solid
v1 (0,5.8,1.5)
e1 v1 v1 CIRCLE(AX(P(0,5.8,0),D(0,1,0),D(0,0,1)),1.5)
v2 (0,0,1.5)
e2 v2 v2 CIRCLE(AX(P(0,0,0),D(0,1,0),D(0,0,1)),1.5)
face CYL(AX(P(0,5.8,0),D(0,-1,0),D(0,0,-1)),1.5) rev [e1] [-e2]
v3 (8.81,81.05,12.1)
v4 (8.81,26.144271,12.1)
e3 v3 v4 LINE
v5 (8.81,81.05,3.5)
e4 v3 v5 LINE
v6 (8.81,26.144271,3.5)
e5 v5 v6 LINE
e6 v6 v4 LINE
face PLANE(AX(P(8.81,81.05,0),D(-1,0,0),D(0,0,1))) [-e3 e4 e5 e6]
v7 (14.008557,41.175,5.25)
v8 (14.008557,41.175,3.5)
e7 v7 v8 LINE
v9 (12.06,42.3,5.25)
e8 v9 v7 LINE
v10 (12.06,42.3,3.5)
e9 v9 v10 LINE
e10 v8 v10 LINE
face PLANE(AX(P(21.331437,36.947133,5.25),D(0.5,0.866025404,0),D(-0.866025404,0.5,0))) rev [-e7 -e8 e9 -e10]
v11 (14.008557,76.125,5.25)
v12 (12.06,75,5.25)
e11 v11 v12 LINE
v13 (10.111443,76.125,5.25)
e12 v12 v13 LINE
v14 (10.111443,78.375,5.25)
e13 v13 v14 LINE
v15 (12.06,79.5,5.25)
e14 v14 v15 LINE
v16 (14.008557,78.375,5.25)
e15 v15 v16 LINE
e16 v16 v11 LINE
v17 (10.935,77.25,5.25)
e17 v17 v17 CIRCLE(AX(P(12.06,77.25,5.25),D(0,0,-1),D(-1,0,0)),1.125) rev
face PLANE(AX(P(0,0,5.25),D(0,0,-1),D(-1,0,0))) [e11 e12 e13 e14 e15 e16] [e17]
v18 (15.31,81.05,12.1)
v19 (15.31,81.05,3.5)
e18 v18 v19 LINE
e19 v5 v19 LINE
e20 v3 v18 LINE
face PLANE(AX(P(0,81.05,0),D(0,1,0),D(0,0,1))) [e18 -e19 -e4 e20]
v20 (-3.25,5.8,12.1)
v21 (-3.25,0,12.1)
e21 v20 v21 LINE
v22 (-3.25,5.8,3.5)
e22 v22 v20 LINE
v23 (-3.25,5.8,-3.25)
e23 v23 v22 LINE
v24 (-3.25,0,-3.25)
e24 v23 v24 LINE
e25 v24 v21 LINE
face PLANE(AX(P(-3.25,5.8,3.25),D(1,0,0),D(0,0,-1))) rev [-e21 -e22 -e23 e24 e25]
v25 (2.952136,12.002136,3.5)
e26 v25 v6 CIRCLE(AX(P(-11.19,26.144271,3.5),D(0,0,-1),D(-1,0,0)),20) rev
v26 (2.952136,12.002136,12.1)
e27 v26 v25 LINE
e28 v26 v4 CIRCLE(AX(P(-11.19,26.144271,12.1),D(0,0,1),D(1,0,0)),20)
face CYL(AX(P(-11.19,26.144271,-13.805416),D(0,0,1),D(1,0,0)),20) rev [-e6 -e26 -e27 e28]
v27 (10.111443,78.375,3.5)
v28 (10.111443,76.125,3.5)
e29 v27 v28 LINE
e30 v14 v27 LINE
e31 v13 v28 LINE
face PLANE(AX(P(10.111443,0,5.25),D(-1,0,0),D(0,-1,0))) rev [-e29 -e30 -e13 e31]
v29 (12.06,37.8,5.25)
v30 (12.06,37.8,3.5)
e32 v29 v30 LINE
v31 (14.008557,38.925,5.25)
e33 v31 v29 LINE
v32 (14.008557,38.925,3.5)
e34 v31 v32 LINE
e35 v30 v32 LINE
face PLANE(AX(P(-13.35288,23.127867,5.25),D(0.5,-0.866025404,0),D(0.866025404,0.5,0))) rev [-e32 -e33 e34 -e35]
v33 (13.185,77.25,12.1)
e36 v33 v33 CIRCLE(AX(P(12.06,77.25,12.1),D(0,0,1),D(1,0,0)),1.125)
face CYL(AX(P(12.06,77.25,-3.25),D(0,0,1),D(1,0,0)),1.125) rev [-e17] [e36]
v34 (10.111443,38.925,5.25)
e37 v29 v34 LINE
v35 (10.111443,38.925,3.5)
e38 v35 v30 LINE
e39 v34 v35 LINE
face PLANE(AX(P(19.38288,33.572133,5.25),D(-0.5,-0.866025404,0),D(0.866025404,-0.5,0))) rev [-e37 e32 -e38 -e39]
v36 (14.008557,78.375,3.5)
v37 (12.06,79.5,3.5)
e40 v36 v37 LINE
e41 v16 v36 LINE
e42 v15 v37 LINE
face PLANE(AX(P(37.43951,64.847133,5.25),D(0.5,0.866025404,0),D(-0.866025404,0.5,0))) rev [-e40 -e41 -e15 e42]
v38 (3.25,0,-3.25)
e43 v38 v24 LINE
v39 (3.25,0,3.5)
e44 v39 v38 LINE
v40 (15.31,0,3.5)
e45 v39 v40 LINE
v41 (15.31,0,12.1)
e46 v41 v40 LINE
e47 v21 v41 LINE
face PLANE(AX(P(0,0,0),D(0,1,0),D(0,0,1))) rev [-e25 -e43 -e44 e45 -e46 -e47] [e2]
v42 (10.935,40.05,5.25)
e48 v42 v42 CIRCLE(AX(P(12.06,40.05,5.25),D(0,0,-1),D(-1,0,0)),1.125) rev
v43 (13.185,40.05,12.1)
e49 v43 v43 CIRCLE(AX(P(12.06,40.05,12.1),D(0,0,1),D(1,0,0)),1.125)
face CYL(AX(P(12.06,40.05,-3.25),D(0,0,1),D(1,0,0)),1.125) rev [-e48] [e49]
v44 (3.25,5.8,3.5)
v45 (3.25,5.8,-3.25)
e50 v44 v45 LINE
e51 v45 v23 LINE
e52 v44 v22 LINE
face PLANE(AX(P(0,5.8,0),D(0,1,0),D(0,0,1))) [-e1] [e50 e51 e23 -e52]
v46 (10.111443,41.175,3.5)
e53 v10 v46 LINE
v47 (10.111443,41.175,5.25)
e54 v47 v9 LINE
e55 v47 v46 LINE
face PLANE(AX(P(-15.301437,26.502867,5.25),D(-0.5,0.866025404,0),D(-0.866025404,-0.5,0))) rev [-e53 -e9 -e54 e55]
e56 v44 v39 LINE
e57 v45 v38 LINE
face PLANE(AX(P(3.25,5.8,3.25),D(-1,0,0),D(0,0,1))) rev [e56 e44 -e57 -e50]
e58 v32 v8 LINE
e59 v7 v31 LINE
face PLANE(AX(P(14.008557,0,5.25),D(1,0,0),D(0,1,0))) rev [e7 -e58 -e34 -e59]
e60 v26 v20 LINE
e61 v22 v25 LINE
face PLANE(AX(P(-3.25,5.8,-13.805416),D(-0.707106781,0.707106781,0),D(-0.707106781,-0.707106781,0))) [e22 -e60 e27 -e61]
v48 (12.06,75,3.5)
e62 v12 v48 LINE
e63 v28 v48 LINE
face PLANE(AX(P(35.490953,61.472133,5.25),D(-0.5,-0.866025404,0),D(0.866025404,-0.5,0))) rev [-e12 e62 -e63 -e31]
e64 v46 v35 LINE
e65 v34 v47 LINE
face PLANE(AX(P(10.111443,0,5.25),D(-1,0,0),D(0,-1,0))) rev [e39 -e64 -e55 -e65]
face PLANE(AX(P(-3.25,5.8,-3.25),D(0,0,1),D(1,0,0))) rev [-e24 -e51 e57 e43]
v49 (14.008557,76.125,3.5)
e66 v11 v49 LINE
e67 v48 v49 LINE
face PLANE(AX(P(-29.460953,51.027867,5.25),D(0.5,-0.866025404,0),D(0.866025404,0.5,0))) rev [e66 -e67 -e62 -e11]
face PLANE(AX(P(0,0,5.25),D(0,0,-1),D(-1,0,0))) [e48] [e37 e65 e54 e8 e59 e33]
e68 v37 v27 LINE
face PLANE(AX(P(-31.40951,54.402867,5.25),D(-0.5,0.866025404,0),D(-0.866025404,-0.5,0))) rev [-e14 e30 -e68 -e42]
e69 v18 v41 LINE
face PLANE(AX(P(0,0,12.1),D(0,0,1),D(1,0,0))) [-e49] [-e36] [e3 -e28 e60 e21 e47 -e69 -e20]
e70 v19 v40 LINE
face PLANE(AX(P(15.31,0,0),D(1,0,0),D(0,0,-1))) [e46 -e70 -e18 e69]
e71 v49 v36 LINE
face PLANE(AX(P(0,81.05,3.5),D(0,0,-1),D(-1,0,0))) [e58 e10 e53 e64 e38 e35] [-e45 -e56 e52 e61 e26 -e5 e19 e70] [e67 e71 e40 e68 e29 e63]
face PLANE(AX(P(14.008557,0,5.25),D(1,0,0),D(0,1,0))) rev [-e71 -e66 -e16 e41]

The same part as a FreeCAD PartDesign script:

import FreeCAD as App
import Part
import Sketcher

V = App.Vector
Q = App.Units.Quantity


def edges_at(feature, points):
    """Names of the edges that pass closest to the given points."""
    edges = feature.Shape.Edges
    near = lambda p: min(range(len(edges)), key=lambda i: edges[i].distToShape(Part.Vertex(*p))[0])
    return sorted({f"Edge{near(p) + 1}" for p in points})

doc = App.newDocument("Part")
body = doc.addObject("PartDesign::Body", "Body")

# Sketch on XZ plane
sketch1 = body.newObject("Sketcher::SketchObject", "Sketch")
sketch1.AttachmentSupport = (doc.getObject("XZ_Plane"), [""])
sketch1.MapMode = "FlatFace"
sketch1.addGeometry([
    Part.LineSegment(V(-3.2, -3.2, 0), V(-3.2, 3.2, 0)),  # 0
    Part.LineSegment(V(-3.2, 3.2, 0), V(3.2, 3.2, 0)),  # 1
    Part.LineSegment(V(3.2, 3.2, 0), V(3.2, -3.2, 0)),  # 2
    Part.LineSegment(V(3.2, -3.2, 0), V(-3.2, -3.2, 0)),  # 3
    Part.Circle(V(0, 0, 0), V(0, 0, 1), 1.5),  # 4
], False)
sketch1.addConstraint([
    Sketcher.Constraint("Coincident", 0, 2, 1, 1),
    Sketcher.Constraint("Coincident", 1, 2, 2, 1),
    Sketcher.Constraint("Coincident", 2, 2, 3, 1),
    Sketcher.Constraint("Coincident", 3, 2, 0, 1),
    Sketcher.Constraint("Vertical", 0),
    Sketcher.Constraint("Horizontal", 1),
    Sketcher.Constraint("Vertical", 2),
    Sketcher.Constraint("Horizontal", 3),
    Sketcher.Constraint("Coincident", 4, 3, -1, 1),
    Sketcher.Constraint("Symmetric", 0, 2, 2, 2, -1, 1),
    Sketcher.Constraint("Equal", 3, 0),
    Sketcher.Constraint("Diameter", 4, 3.0),
    Sketcher.Constraint("DistanceX", 1, 1, 1, 2, 6.5),
])
pad1 = body.newObject("PartDesign::Pad", "Pad")
pad1.Profile = sketch1
pad1.Length = 5.8
pad1.Reversed = True

# Sketch on XY plane
sketch2 = body.newObject("Sketcher::SketchObject", "Sketch001")
sketch2.AttachmentSupport = (doc.getObject("XY_Plane"), [""])
sketch2.MapMode = "FlatFace"
sketch2.AttachmentOffset = App.Placement(V(0, 0, 3.25), App.Rotation())
sketch2.addGeometry([
    Part.LineSegment(V(-3, 6, 0), V(-3, 0, 0)),
    Part.LineSegment(V(-3, 0, 0), V(3, 0, 0)),
    Part.LineSegment(V(3, 0, 0), V(3, 6, 0)),
    Part.LineSegment(V(3, 6, 0), V(-3, 6, 0)),
], False)
sketch2.addConstraint([
    Sketcher.Constraint("Coincident", 0, 2, 1, 1),
    Sketcher.Constraint("Coincident", 1, 2, 2, 1),
    Sketcher.Constraint("Coincident", 2, 2, 3, 1),
    Sketcher.Constraint("Coincident", 3, 2, 0, 1),
    Sketcher.Constraint("Vertical", 0),
    Sketcher.Constraint("Horizontal", 1),
    Sketcher.Constraint("Vertical", 2),
    Sketcher.Constraint("Horizontal", 3),
    Sketcher.Constraint("Symmetric", 0, 2, 1, 2, -1, 1),
    Sketcher.Constraint("DistanceX", 1, 1, 1, 2, 6.5),
    Sketcher.Constraint("DistanceY", 0, 2, 0, 1, 5.8),
])
pad2 = body.newObject("PartDesign::Pad", "Pad001")
pad2.Profile = sketch2
pad2.Length = 8.85

# Sketch on YZ plane
sketch3 = body.newObject("Sketcher::SketchObject", "Sketch002")
sketch3.AttachmentSupport = (doc.getObject("YZ_Plane"), [""])
sketch3.MapMode = "FlatFace"
sketch3.AttachmentOffset = App.Placement(V(0, 0, 3.25), App.Rotation())
sketch3.addGeometry([
    Part.LineSegment(V(6, 12, 0), V(0, 12, 0)),
    Part.LineSegment(V(0, 12, 0), V(0, 3, 0)),
    Part.LineSegment(V(0, 3, 0), V(6, 3, 0)),
    Part.LineSegment(V(6, 3, 0), V(6, 12, 0)),
], False)
sketch3.addConstraint([
    Sketcher.Constraint("Coincident", 0, 2, 1, 1),
    Sketcher.Constraint("Coincident", 1, 2, 2, 1),
    Sketcher.Constraint("Coincident", 2, 2, 3, 1),
    Sketcher.Constraint("Coincident", 3, 2, 0, 1),
    Sketcher.Constraint("Horizontal", 0),
    Sketcher.Constraint("Vertical", 1),
    Sketcher.Constraint("Horizontal", 2),
    Sketcher.Constraint("Vertical", 3),
    Sketcher.Constraint("PointOnObject", 0, 2, -2),
    Sketcher.Constraint("DistanceX", 0, 2, 0, 1, 5.8),
    Sketcher.Constraint("DistanceY", 1, 2, 1, 1, 8.85),
    Sketcher.Constraint("DistanceY", -1, 1, 0, 2, 12.1),
])
pad3 = body.newObject("PartDesign::Pad", "Pad002")
pad3.Profile = sketch3
pad3.Length = 12.06

# Sketch on XZ plane
sketch4 = body.newObject("Sketcher::SketchObject", "Sketch003")
sketch4.AttachmentSupport = (doc.getObject("XZ_Plane"), [""])
sketch4.MapMode = "FlatFace"
sketch4.AttachmentOffset = App.Placement(V(0, 0, -5.8), App.Rotation())
sketch4.addGeometry([
    Part.LineSegment(V(9, 3, 0), V(9, 12, 0)),
    Part.LineSegment(V(9, 12, 0), V(15, 12, 0)),
    Part.LineSegment(V(15, 12, 0), V(15, 3, 0)),
    Part.LineSegment(V(15, 3, 0), V(9, 3, 0)),
], False)
sketch4.addConstraint([
    Sketcher.Constraint("Coincident", 0, 2, 1, 1),
    Sketcher.Constraint("Coincident", 1, 2, 2, 1),
    Sketcher.Constraint("Coincident", 2, 2, 3, 1),
    Sketcher.Constraint("Coincident", 3, 2, 0, 1),
    Sketcher.Constraint("Vertical", 0),
    Sketcher.Constraint("Horizontal", 1),
    Sketcher.Constraint("Vertical", 2),
    Sketcher.Constraint("Horizontal", 3),
    Sketcher.Constraint("DistanceX", 1, 1, 1, 2, 6.5),
    Sketcher.Constraint("DistanceY", 0, 1, 0, 2, 8.85),
    Sketcher.Constraint("DistanceY", -1, 1, 0, 2, 12.1),
    Sketcher.Constraint("DistanceX", -1, 1, 0, 2, 8.81),
])
pad4 = body.newObject("PartDesign::Pad", "Pad003")
pad4.Profile = sketch4
pad4.Length = 75.25
pad4.Reversed = True

# Sketch on XY plane
sketch5 = body.newObject("Sketcher::SketchObject", "Sketch004")
sketch5.AttachmentSupport = (doc.getObject("XY_Plane"), [""])
sketch5.MapMode = "FlatFace"
sketch5.AttachmentOffset = App.Placement(V(0, 0, 12.1), App.Rotation())
sketch5.addGeometry([
    Part.LineSegment(V(-3, 6, 0), V(9, 6, 0)),
    Part.LineSegment(V(9, 6, 0), V(9, 18, 0)),
    Part.LineSegment(V(9, 18, 0), V(-3, 6, 0)),
], False)
sketch5.addConstraint([
    Sketcher.Constraint("Coincident", 0, 2, 1, 1),
    Sketcher.Constraint("Coincident", 1, 2, 2, 1),
    Sketcher.Constraint("Coincident", 2, 2, 0, 1),
    Sketcher.Constraint("Horizontal", 0),
    Sketcher.Constraint("Vertical", 1),
    Sketcher.Constraint("Equal", 0, 1),
    Sketcher.Constraint("DistanceX", 0, 1, 0, 2, 12.06),
    Sketcher.Constraint("DistanceY", -1, 1, 0, 2, 5.8),
    Sketcher.Constraint("DistanceX", -1, 1, 0, 2, 8.81),
])
pad5 = body.newObject("PartDesign::Pad", "Pad004")
pad5.Profile = sketch5
pad5.Length = 8.85
pad5.Reversed = True
doc.recompute()

fillet = body.newObject("PartDesign::Fillet", "Fillet")
fillet.Base = (pad5, edges_at(pad5, [(8.81, 17.86, 7.675)]))
fillet.Radius = 20

# Sketch on XY plane
sketch6 = body.newObject("Sketcher::SketchObject", "Sketch005")
sketch6.AttachmentSupport = (doc.getObject("XY_Plane"), [""])
sketch6.MapMode = "FlatFace"
sketch6.AttachmentOffset = App.Placement(V(0, 0, 12.1), App.Rotation())
sketch6.addGeometry([
    Part.Circle(V(12.1, 77.2, 0), V(0, 0, 1), 1.1),
    Part.Circle(V(12.1, 40, 0), V(0, 0, 1), 1.1),
], False)
sketch6.addConstraint([
    Sketcher.Constraint("Equal", 0, 1),
    Sketcher.Constraint("Vertical", 0, 3, 1, 3),
    Sketcher.Constraint("Diameter", 0, 2.25),
    Sketcher.Constraint("DistanceY", 1, 3, 0, 3, 37.2),
    Sketcher.Constraint("DistanceX", -1, 1, 0, 3, 12.06),
    Sketcher.Constraint("DistanceY", -1, 1, 0, 3, 77.25),
])
pocket1 = body.newObject("PartDesign::Pocket", "Pocket")
pocket1.Profile = sketch6
pocket1.Type = "ThroughAll"

# Sketch on XY plane
sketch7 = body.newObject("Sketcher::SketchObject", "Sketch006")
sketch7.AttachmentSupport = (doc.getObject("XY_Plane"), [""])
sketch7.MapMode = "FlatFace"
sketch7.AttachmentOffset = App.Placement(V(0, 0, 5.25), App.Rotation())
sketch7.addGeometry([
    Part.LineSegment(V(10.1, 76.1, 0), V(10.1, 78.4, 0)),  # 0
    Part.LineSegment(V(10.1, 78.4, 0), V(12.1, 79.5, 0)),  # 1
    Part.LineSegment(V(12.1, 79.5, 0), V(14, 78.4, 0)),  # 2
    Part.LineSegment(V(14, 78.4, 0), V(14, 76.1, 0)),  # 3
    Part.LineSegment(V(14, 76.1, 0), V(12.1, 75, 0)),  # 4
    Part.LineSegment(V(12.1, 75, 0), V(10.1, 76.1, 0)),  # 5
    Part.Circle(V(12.1, 77.2, 0), V(0, 0, 1), 1.1),  # 6
    Part.LineSegment(V(10.1, 38.9, 0), V(10.1, 41.2, 0)),  # 7
    Part.LineSegment(V(10.1, 41.2, 0), V(12.1, 42.3, 0)),  # 8
    Part.LineSegment(V(12.1, 42.3, 0), V(14, 41.2, 0)),  # 9
    Part.LineSegment(V(14, 41.2, 0), V(14, 38.9, 0)),  # 10
    Part.LineSegment(V(14, 38.9, 0), V(12.1, 37.8, 0)),  # 11
    Part.LineSegment(V(12.1, 37.8, 0), V(10.1, 38.9, 0)),  # 12
    Part.Circle(V(12.1, 40, 0), V(0, 0, 1), 1.1),  # 13
], False)
sketch7.addConstraint([
    Sketcher.Constraint("Coincident", 0, 2, 1, 1),
    Sketcher.Constraint("Coincident", 1, 2, 2, 1),
    Sketcher.Constraint("Coincident", 2, 2, 3, 1),
    Sketcher.Constraint("Coincident", 3, 2, 4, 1),
    Sketcher.Constraint("Coincident", 4, 2, 5, 1),
    Sketcher.Constraint("Coincident", 5, 2, 0, 1),
    Sketcher.Constraint("Coincident", 7, 2, 8, 1),
    Sketcher.Constraint("Coincident", 8, 2, 9, 1),
    Sketcher.Constraint("Coincident", 9, 2, 10, 1),
    Sketcher.Constraint("Coincident", 10, 2, 11, 1),
    Sketcher.Constraint("Coincident", 11, 2, 12, 1),
    Sketcher.Constraint("Coincident", 12, 2, 7, 1),
    Sketcher.Constraint("Vertical", 0),
    Sketcher.Constraint("Vertical", 3),
    Sketcher.Constraint("Vertical", 7),
    Sketcher.Constraint("Vertical", 10),
    Sketcher.Constraint("Equal", 6, 13),
    Sketcher.Constraint("Parallel", 1, 4),
    Sketcher.Constraint("Parallel", 2, 5),
    Sketcher.Constraint("Parallel", 4, 8),
    Sketcher.Constraint("Parallel", 5, 9),
    Sketcher.Constraint("Parallel", 8, 11),
    Sketcher.Constraint("Parallel", 9, 12),
    Sketcher.Constraint("Horizontal", 0, 2, 2, 2),
    Sketcher.Constraint("Horizontal", 3, 2, 5, 2),
    Sketcher.Constraint("Horizontal", 7, 2, 9, 2),
    Sketcher.Constraint("Horizontal", 10, 2, 12, 2),
    Sketcher.Constraint("Vertical", 6, 3, 13, 3),
    Sketcher.Constraint("Vertical", 13, 3, 1, 2),
    Sketcher.Constraint("Vertical", 1, 2, 4, 2),
    Sketcher.Constraint("Vertical", 5, 2, 7, 2),
    Sketcher.Constraint("Vertical", 4, 2, 8, 2),
    Sketcher.Constraint("Equal", 3, 7),
    Sketcher.Constraint("Diameter", 6, 2.25),
    Sketcher.Constraint("Angle", 1, Q("30 deg")),
    Sketcher.Constraint("DistanceY", -1, 1, 4, 2, 75.0),
    Sketcher.Constraint("DistanceY", 0, 1, 0, 2, 2.25),
    Sketcher.Constraint("DistanceY", -1, 1, 1, 2, 79.5),
    Sketcher.Constraint("DistanceY", -1, 1, 8, 2, 42.3),
    Sketcher.Constraint("DistanceY", 13, 3, 6, 3, 37.2),
    Sketcher.Constraint("DistanceX", -1, 1, 6, 3, 12.06),
    Sketcher.Constraint("DistanceY", -1, 1, 6, 3, 77.25),
])
pocket2 = body.newObject("PartDesign::Pocket", "Pocket001")
pocket2.Profile = sketch7
pocket2.Length = 2

# Sketch on XZ plane
sketch8 = body.newObject("Sketcher::SketchObject", "Sketch007")
sketch8.AttachmentSupport = (doc.getObject("XZ_Plane"), [""])
sketch8.MapMode = "FlatFace"
sketch8.addGeometry([
    Part.LineSegment(V(15.31, 3.25, 0), V(15.31, 3.5, 0)),
    Part.LineSegment(V(15.31, 3.5, 0), V(3.25, 3.5, 0)),
    Part.LineSegment(V(3.25, 3.5, 0), V(3.25, 3.25, 0)),
    Part.LineSegment(V(3.25, 3.25, 0), V(15.31, 3.25, 0)),
], False)
sketch8.addConstraint([
    Sketcher.Constraint("Coincident", 0, 2, 1, 1),
    Sketcher.Constraint("Coincident", 1, 2, 2, 1),
    Sketcher.Constraint("Coincident", 2, 2, 3, 1),
    Sketcher.Constraint("Coincident", 3, 2, 0, 1),
    Sketcher.Constraint("Vertical", 0),
    Sketcher.Constraint("Horizontal", 1),
    Sketcher.Constraint("Vertical", 2),
    Sketcher.Constraint("Horizontal", 3),
    Sketcher.Constraint("DistanceX", 1, 2, 1, 1, 12.06),
    Sketcher.Constraint("DistanceY", 0, 1, 0, 2, 0.25),
    Sketcher.Constraint("DistanceY", -1, 1, 0, 2, 3.5),
    Sketcher.Constraint("DistanceX", -1, 1, 0, 2, 15.31),
])
pocket3 = body.newObject("PartDesign::Pocket", "Pocket002")
pocket3.Profile = sketch8
pocket3.Type = "ThroughAll"

# Sketch on XZ plane
sketch9 = body.newObject("Sketcher::SketchObject", "Sketch008")
sketch9.AttachmentSupport = (doc.getObject("XZ_Plane"), [""])
sketch9.MapMode = "FlatFace"
sketch9.AttachmentOffset = App.Placement(V(0, 0, -5.8), App.Rotation())
sketch9.addGeometry([
    Part.LineSegment(V(-3.25, 3.25, 0), V(-3.25, 3.5, 0)),
    Part.LineSegment(V(-3.25, 3.5, 0), V(3.25, 3.5, 0)),
    Part.LineSegment(V(3.25, 3.5, 0), V(3.25, 3.25, 0)),
    Part.LineSegment(V(3.25, 3.25, 0), V(-3.25, 3.25, 0)),
], False)
sketch9.addConstraint([
    Sketcher.Constraint("Coincident", 0, 2, 1, 1),
    Sketcher.Constraint("Coincident", 1, 2, 2, 1),
    Sketcher.Constraint("Coincident", 2, 2, 3, 1),
    Sketcher.Constraint("Coincident", 3, 2, 0, 1),
    Sketcher.Constraint("Vertical", 0),
    Sketcher.Constraint("Horizontal", 1),
    Sketcher.Constraint("Vertical", 2),
    Sketcher.Constraint("Horizontal", 3),
    Sketcher.Constraint("DistanceX", 1, 1, 1, 2, 6.5),
    Sketcher.Constraint("DistanceY", 0, 1, 0, 2, 0.25),
    Sketcher.Constraint("DistanceY", -1, 1, 0, 2, 3.5),
    Sketcher.Constraint("DistanceX", 0, 2, -1, 1, 3.25),
])
pocket4 = body.newObject("PartDesign::Pocket", "Pocket003")
pocket4.Profile = sketch9
pocket4.Type = "ThroughAll"

doc.recompute()
